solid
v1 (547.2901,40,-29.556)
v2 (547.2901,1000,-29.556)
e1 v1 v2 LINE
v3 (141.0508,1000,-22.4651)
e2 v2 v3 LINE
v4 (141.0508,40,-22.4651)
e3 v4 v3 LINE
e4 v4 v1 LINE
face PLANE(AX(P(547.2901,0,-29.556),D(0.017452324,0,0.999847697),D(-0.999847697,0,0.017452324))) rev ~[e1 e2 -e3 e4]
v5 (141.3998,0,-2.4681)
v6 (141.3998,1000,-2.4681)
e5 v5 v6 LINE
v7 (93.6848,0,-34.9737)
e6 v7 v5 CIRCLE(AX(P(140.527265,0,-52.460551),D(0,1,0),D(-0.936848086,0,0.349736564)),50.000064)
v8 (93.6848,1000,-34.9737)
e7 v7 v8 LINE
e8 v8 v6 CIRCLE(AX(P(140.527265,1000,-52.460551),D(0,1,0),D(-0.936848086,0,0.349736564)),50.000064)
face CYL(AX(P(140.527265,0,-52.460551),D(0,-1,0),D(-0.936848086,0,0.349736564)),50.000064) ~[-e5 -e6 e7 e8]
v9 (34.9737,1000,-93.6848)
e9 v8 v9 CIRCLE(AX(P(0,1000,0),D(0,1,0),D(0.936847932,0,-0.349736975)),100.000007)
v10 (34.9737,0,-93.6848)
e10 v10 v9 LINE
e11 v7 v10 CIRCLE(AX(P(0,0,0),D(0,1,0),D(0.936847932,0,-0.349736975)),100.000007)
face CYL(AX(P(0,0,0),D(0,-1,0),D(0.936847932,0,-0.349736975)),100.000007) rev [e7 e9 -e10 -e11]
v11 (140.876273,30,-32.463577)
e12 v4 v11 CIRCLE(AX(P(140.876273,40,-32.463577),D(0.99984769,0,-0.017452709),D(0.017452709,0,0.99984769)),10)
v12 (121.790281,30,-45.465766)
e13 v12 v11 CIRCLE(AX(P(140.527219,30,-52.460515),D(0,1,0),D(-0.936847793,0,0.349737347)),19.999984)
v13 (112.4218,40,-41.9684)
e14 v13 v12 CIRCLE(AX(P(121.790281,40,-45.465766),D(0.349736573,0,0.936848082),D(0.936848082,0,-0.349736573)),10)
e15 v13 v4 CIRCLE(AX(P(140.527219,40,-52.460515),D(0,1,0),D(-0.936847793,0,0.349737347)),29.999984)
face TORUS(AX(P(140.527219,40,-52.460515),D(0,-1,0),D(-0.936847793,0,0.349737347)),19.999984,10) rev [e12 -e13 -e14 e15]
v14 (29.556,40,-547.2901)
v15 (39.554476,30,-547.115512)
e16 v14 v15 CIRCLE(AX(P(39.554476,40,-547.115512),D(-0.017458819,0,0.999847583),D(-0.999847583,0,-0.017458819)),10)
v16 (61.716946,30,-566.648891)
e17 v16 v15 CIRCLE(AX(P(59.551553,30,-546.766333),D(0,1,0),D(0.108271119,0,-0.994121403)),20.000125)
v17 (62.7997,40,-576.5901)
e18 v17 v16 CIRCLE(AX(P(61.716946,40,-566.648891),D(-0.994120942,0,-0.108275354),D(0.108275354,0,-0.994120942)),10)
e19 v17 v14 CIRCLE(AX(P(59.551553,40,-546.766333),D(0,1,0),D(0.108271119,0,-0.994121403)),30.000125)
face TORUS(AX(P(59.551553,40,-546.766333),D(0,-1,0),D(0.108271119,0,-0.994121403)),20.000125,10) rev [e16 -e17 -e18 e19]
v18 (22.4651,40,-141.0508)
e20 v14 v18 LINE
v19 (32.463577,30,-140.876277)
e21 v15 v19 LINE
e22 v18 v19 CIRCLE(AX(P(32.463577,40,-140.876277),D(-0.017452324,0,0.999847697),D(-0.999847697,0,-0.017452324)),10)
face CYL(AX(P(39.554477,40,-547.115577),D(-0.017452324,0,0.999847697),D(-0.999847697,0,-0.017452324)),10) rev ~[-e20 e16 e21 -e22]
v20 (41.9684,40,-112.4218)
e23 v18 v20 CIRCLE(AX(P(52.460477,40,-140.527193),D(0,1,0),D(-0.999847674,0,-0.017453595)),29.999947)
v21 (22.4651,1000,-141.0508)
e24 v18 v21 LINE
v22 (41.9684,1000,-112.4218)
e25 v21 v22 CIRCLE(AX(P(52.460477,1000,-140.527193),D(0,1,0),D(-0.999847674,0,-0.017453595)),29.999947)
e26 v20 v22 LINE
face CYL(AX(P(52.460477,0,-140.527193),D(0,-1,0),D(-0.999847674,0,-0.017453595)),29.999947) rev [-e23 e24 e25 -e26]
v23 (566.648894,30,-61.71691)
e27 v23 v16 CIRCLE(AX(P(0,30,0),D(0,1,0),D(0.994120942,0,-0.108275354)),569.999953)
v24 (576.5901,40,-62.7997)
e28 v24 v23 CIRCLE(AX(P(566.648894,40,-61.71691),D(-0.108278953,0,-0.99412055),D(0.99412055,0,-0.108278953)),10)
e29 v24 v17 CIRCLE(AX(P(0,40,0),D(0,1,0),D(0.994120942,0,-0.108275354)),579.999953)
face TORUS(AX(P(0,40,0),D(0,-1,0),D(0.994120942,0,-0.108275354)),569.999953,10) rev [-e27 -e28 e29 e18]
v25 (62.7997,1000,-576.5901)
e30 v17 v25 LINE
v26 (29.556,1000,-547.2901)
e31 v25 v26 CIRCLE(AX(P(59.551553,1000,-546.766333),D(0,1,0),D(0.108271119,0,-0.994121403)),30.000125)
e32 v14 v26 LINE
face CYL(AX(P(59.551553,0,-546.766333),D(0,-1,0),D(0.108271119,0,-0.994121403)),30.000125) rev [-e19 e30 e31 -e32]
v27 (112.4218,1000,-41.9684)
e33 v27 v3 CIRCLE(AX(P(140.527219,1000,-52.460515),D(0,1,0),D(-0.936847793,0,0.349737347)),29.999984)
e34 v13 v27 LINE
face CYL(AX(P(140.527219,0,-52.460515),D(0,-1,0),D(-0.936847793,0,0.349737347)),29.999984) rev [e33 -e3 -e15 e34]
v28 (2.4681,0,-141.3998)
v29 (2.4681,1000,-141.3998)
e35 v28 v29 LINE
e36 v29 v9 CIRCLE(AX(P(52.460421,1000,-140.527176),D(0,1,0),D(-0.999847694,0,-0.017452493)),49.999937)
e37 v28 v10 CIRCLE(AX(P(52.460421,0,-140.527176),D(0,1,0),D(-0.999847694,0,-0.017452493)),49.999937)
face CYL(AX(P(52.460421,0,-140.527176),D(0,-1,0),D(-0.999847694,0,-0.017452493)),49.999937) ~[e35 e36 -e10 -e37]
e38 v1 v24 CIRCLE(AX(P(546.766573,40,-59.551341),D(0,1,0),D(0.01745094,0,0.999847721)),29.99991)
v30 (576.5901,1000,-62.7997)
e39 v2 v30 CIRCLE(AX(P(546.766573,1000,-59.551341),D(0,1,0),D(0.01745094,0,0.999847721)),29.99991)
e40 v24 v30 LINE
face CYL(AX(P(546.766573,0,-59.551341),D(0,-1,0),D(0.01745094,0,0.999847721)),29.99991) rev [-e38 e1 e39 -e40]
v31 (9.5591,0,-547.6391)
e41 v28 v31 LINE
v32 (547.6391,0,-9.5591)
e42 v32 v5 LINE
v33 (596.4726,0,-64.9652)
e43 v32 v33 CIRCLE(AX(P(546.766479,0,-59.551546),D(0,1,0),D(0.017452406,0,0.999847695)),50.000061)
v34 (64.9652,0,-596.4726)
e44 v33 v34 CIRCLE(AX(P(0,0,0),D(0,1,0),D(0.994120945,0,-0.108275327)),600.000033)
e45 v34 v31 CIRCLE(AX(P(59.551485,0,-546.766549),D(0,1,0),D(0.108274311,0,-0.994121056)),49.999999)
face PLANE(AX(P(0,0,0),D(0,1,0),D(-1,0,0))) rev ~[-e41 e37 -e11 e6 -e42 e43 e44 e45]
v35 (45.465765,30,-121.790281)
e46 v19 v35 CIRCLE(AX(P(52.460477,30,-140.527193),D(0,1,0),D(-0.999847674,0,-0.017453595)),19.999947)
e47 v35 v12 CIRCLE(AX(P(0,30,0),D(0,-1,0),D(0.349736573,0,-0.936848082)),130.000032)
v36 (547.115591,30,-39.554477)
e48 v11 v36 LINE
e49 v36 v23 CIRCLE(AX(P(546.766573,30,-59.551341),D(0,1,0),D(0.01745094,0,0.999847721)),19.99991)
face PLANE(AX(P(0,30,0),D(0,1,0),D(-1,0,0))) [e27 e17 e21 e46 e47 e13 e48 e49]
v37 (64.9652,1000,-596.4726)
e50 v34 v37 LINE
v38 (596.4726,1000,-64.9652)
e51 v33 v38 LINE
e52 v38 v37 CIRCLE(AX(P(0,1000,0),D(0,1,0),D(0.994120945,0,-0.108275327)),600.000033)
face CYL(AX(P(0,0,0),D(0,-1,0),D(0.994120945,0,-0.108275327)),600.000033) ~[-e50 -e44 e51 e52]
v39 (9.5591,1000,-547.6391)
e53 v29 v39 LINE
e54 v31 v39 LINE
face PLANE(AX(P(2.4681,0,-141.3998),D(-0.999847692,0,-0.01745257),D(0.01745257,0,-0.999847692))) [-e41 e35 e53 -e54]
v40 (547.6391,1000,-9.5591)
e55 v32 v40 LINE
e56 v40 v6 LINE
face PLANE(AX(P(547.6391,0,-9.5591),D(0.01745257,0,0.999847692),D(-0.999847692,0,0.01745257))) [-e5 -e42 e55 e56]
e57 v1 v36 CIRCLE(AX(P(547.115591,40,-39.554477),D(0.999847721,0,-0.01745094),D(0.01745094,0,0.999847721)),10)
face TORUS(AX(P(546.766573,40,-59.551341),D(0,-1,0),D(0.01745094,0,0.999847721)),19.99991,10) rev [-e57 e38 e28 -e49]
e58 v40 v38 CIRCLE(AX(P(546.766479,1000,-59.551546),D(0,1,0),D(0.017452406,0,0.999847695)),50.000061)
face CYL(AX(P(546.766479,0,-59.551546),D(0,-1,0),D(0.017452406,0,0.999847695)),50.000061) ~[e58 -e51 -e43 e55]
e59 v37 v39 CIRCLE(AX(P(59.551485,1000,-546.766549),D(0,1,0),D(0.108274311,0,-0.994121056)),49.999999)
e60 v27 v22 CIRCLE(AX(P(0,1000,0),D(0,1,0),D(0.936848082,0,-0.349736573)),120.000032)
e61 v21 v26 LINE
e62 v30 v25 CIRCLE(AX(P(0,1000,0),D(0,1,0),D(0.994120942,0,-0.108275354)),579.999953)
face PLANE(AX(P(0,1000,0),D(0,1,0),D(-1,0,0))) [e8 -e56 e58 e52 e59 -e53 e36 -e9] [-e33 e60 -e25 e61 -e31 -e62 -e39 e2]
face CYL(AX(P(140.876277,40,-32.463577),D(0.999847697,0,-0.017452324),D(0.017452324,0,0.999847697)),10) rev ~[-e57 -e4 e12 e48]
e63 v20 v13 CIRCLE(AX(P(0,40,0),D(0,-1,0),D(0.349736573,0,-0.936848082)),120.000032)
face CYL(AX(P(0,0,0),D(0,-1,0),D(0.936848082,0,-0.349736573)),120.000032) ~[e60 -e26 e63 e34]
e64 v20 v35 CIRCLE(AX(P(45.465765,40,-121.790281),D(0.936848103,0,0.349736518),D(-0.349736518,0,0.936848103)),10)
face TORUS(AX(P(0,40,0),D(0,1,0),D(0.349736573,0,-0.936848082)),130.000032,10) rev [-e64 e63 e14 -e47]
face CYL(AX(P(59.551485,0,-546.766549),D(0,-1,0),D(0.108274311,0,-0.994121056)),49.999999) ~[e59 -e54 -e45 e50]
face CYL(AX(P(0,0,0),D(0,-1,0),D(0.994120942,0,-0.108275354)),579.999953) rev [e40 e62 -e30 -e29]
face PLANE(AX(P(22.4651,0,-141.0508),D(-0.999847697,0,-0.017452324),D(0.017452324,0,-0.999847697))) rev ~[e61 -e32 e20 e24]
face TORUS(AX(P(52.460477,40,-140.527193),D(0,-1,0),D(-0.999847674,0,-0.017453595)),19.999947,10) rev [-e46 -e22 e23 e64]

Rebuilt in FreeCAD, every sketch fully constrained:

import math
import FreeCAD as App
import Part
import Sketcher
from FreeCAD import Vector
Q = App.Units.Quantity


def edges_at(feature, points):
    """Names of the edges that pass closest to the given points."""
    edges = feature.Shape.Edges
    near = lambda p: min(range(len(edges)), key=lambda i: edges[i].distToShape(Part.Vertex(*p))[0])
    return sorted({f"Edge{near(p) + 1}" for p in points})

doc = App.newDocument("Part")
body = doc.addObject("PartDesign::Body", "Body")

# Sketch on XZ plane
sketch1 = body.newObject("Sketcher::SketchObject", "Sketch")
sketch1.AttachmentSupport = (doc.getObject("XZ_Plane"), [""])
sketch1.MapMode = "FlatFace"
sketch1.addGeometry(Part.ArcOfCircle(Part.Circle(Vector(0, 0, 0), Vector(0, 0, 1), 600), math.radians(-84), math.radians(-6)), False)
sketch1.addGeometry(Part.ArcOfCircle(Part.Circle(Vector(60, -547, 0), Vector(0, 0, 1), 50), math.radians(-179), math.radians(-84)), False)
sketch1.addGeometry(Part.LineSegment(Vector(10, -548, 0), Vector(2, -141, 0)), False)
sketch1.addGeometry(Part.ArcOfCircle(Part.Circle(Vector(52, -141, 0), Vector(0, 0, 1), 50), math.radians(110), math.radians(181)), False)
sketch1.addGeometry(Part.ArcOfCircle(Part.Circle(Vector(0, 0, 0), Vector(0, 0, 1), 100), math.radians(-70), math.radians(-20)), False)
sketch1.addGeometry(Part.ArcOfCircle(Part.Circle(Vector(141, -52, 0), Vector(0, 0, 1), 50), math.radians(89), math.radians(160)), False)
sketch1.addGeometry(Part.LineSegment(Vector(141, -2, 0), Vector(548, -10, 0)), False)
sketch1.addGeometry(Part.ArcOfCircle(Part.Circle(Vector(547, -60, 0), Vector(0, 0, 1), 50), math.radians(-6), math.radians(89)), False)
sketch1.addGeometry(Part.ArcOfCircle(Part.Circle(Vector(52, -141, 0), Vector(0, 0, 1), 30), math.radians(110), math.radians(181)), False)
sketch1.addGeometry(Part.LineSegment(Vector(22, -141, 0), Vector(30, -547, 0)), False)
sketch1.addGeometry(Part.ArcOfCircle(Part.Circle(Vector(60, -547, 0), Vector(0, 0, 1), 30), math.radians(-179), math.radians(-84)), False)
sketch1.addGeometry(Part.ArcOfCircle(Part.Circle(Vector(0, 0, 0), Vector(0, 0, 1), 580), math.radians(-84), math.radians(-6)), False)
sketch1.addGeometry(Part.ArcOfCircle(Part.Circle(Vector(547, -60, 0), Vector(0, 0, 1), 30), math.radians(-6), math.radians(89)), False)
sketch1.addGeometry(Part.LineSegment(Vector(547, -30, 0), Vector(141, -22, 0)), False)
sketch1.addGeometry(Part.ArcOfCircle(Part.Circle(Vector(141, -52, 0), Vector(0, 0, 1), 30), math.radians(89), math.radians(160)), False)
sketch1.addGeometry(Part.ArcOfCircle(Part.Circle(Vector(0, 0, 0), Vector(0, 0, 1), 120), math.radians(-70), math.radians(-20)), False)
sketch1.addConstraint(Sketcher.Constraint("Tangent", 0, 1, 1, 2))
sketch1.addConstraint(Sketcher.Constraint("Tangent", 1, 1, 2, 1))
sketch1.addConstraint(Sketcher.Constraint("Tangent", 2, 2, 3, 2))
sketch1.addConstraint(Sketcher.Constraint("Tangent", 3, 1, 4, 1))
sketch1.addConstraint(Sketcher.Constraint("Tangent", 4, 2, 5, 2))
sketch1.addConstraint(Sketcher.Constraint("Tangent", 5, 1, 6, 1))
sketch1.addConstraint(Sketcher.Constraint("Tangent", 6, 2, 7, 2))
sketch1.addConstraint(Sketcher.Constraint("Tangent", 7, 1, 0, 2))
sketch1.addConstraint(Sketcher.Constraint("Tangent", 8, 2, 9, 1))
sketch1.addConstraint(Sketcher.Constraint("Tangent", 9, 2, 10, 1))
sketch1.addConstraint(Sketcher.Constraint("Tangent", 10, 2, 11, 1))
sketch1.addConstraint(Sketcher.Constraint("Tangent", 11, 2, 12, 1))
sketch1.addConstraint(Sketcher.Constraint("Tangent", 12, 2, 13, 1))
sketch1.addConstraint(Sketcher.Constraint("Tangent", 13, 2, 14, 1))
sketch1.addConstraint(Sketcher.Constraint("Tangent", 14, 2, 15, 2))
sketch1.addConstraint(Sketcher.Constraint("Tangent", 15, 1, 8, 1))
sketch1.addConstraint(Sketcher.Constraint("Coincident", 0, 3, -1, 1))
sketch1.addConstraint(Sketcher.Constraint("Coincident", 4, 3, -1, 1))
sketch1.addConstraint(Sketcher.Constraint("Coincident", 11, 3, -1, 1))
sketch1.addConstraint(Sketcher.Constraint("Coincident", 15, 3, -1, 1))
sketch1.addConstraint(Sketcher.Constraint("Coincident", 8, 3, 3, 3))
sketch1.addConstraint(Sketcher.Constraint("Coincident", 10, 3, 1, 3))
sketch1.addConstraint(Sketcher.Constraint("Coincident", 12, 3, 7, 3))
sketch1.addConstraint(Sketcher.Constraint("Coincident", 14, 3, 5, 3))
sketch1.addConstraint(Sketcher.Constraint("Equal", 1, 3))
sketch1.addConstraint(Sketcher.Constraint("Equal", 3, 5))
sketch1.addConstraint(Sketcher.Constraint("Equal", 5, 7))
sketch1.addConstraint(Sketcher.Constraint("Equal", 8, 10))
sketch1.addConstraint(Sketcher.Constraint("Equal", 2, 6))
sketch1.addConstraint(Sketcher.Constraint("Radius", 0, 600.0))
sketch1.addConstraint(Sketcher.Constraint("Radius", 1, 50.0))
sketch1.addConstraint(Sketcher.Constraint("Radius", 4, 100.0))
sketch1.addConstraint(Sketcher.Constraint("Radius", 8, 30.0))
sketch1.addConstraint(Sketcher.Constraint("Angle", 2, Q("91 deg")))
sketch1.addConstraint(Sketcher.Constraint("Angle", 6, Q("-1 deg")))
sketch1.addConstraint(Sketcher.Constraint("DistanceY", 9, 2, -1, 1, 547.29))
pad1 = body.newObject("PartDesign::Pad", "Pad")
pad1.Profile = sketch1
pad1.Length = 1000
pad1.Reversed = True

# Sketch on XZ plane
sketch2 = body.newObject("Sketcher::SketchObject", "Sketch001")
sketch2.AttachmentSupport = (doc.getObject("XZ_Plane"), [""])
sketch2.MapMode = "FlatFace"
sketch2.addGeometry(Part.LineSegment(Vector(30, -547, 0), Vector(22, -141, 0)), False)
sketch2.addGeometry(Part.ArcOfCircle(Part.Circle(Vector(52, -141, 0), Vector(0, 0, 1), 30), math.radians(110), math.radians(181)), False)
sketch2.addGeometry(Part.ArcOfCircle(Part.Circle(Vector(0, 0, 0), Vector(0, 0, 1), 120), math.radians(-70), math.radians(-20)), False)
sketch2.addGeometry(Part.ArcOfCircle(Part.Circle(Vector(141, -52, 0), Vector(0, 0, 1), 30), math.radians(89), math.radians(160)), False)
sketch2.addGeometry(Part.LineSegment(Vector(141, -22, 0), Vector(547, -30, 0)), False)
sketch2.addGeometry(Part.ArcOfCircle(Part.Circle(Vector(547, -60, 0), Vector(0, 0, 1), 30), math.radians(-6), math.radians(89)), False)
sketch2.addGeometry(Part.ArcOfCircle(Part.Circle(Vector(0, 0, 0), Vector(0, 0, 1), 580), math.radians(-84), math.radians(-6)), False)
sketch2.addGeometry(Part.ArcOfCircle(Part.Circle(Vector(60, -547, 0), Vector(0, 0, 1), 30), math.radians(-179), math.radians(-84)), False)
sketch2.addConstraint(Sketcher.Constraint("Tangent", 0, 2, 1, 2))
sketch2.addConstraint(Sketcher.Constraint("Tangent", 1, 1, 2, 1))
sketch2.addConstraint(Sketcher.Constraint("Tangent", 2, 2, 3, 2))
sketch2.addConstraint(Sketcher.Constraint("Tangent", 3, 1, 4, 1))
sketch2.addConstraint(Sketcher.Constraint("Tangent", 4, 2, 5, 2))
sketch2.addConstraint(Sketcher.Constraint("Tangent", 5, 1, 6, 2))
sketch2.addConstraint(Sketcher.Constraint("Tangent", 6, 1, 7, 2))
sketch2.addConstraint(Sketcher.Constraint("Tangent", 7, 1, 0, 1))
sketch2.addConstraint(Sketcher.Constraint("Coincident", 2, 3, -1, 1))
sketch2.addConstraint(Sketcher.Constraint("Coincident", 6, 3, -1, 1))
sketch2.addConstraint(Sketcher.Constraint("Equal", 1, 3))
sketch2.addConstraint(Sketcher.Constraint("Equal", 3, 5))
sketch2.addConstraint(Sketcher.Constraint("Equal", 5, 7))
sketch2.addConstraint(Sketcher.Constraint("Equal", 0, 4))
sketch2.addConstraint(Sketcher.Constraint("Radius", 1, 30.0))
sketch2.addConstraint(Sketcher.Constraint("Radius", 2, 120.0))
sketch2.addConstraint(Sketcher.Constraint("Radius", 6, 580.0))
sketch2.addConstraint(Sketcher.Constraint("Angle", 0, Q("91 deg")))
sketch2.addConstraint(Sketcher.Constraint("Angle", 4, Q("-1 deg")))
sketch2.addConstraint(Sketcher.Constraint("DistanceX", -1, 1, 4, 2, 547.29))
pad2 = body.newObject("PartDesign::Pad", "Pad001")
pad2.Profile = sketch2
pad2.Length = 30
pad2.Reversed = True
doc.recompute()

fillet = body.newObject("PartDesign::Fillet", "Fillet")
fillet.Base = (pad2, edges_at(pad2, [
    (569.273, 30, -39.715),
    (344.17, 30, -26.011),
    (123.637, 30, -27.667),
    (84.853, 30, -84.853),
    (27.667, 30, -123.637),
    (26.011, 30, -344.17),
    (39.715, 30, -569.273),
    (410.122, 30, -410.122),
]))
fillet.Radius = 10

doc.recompute()
